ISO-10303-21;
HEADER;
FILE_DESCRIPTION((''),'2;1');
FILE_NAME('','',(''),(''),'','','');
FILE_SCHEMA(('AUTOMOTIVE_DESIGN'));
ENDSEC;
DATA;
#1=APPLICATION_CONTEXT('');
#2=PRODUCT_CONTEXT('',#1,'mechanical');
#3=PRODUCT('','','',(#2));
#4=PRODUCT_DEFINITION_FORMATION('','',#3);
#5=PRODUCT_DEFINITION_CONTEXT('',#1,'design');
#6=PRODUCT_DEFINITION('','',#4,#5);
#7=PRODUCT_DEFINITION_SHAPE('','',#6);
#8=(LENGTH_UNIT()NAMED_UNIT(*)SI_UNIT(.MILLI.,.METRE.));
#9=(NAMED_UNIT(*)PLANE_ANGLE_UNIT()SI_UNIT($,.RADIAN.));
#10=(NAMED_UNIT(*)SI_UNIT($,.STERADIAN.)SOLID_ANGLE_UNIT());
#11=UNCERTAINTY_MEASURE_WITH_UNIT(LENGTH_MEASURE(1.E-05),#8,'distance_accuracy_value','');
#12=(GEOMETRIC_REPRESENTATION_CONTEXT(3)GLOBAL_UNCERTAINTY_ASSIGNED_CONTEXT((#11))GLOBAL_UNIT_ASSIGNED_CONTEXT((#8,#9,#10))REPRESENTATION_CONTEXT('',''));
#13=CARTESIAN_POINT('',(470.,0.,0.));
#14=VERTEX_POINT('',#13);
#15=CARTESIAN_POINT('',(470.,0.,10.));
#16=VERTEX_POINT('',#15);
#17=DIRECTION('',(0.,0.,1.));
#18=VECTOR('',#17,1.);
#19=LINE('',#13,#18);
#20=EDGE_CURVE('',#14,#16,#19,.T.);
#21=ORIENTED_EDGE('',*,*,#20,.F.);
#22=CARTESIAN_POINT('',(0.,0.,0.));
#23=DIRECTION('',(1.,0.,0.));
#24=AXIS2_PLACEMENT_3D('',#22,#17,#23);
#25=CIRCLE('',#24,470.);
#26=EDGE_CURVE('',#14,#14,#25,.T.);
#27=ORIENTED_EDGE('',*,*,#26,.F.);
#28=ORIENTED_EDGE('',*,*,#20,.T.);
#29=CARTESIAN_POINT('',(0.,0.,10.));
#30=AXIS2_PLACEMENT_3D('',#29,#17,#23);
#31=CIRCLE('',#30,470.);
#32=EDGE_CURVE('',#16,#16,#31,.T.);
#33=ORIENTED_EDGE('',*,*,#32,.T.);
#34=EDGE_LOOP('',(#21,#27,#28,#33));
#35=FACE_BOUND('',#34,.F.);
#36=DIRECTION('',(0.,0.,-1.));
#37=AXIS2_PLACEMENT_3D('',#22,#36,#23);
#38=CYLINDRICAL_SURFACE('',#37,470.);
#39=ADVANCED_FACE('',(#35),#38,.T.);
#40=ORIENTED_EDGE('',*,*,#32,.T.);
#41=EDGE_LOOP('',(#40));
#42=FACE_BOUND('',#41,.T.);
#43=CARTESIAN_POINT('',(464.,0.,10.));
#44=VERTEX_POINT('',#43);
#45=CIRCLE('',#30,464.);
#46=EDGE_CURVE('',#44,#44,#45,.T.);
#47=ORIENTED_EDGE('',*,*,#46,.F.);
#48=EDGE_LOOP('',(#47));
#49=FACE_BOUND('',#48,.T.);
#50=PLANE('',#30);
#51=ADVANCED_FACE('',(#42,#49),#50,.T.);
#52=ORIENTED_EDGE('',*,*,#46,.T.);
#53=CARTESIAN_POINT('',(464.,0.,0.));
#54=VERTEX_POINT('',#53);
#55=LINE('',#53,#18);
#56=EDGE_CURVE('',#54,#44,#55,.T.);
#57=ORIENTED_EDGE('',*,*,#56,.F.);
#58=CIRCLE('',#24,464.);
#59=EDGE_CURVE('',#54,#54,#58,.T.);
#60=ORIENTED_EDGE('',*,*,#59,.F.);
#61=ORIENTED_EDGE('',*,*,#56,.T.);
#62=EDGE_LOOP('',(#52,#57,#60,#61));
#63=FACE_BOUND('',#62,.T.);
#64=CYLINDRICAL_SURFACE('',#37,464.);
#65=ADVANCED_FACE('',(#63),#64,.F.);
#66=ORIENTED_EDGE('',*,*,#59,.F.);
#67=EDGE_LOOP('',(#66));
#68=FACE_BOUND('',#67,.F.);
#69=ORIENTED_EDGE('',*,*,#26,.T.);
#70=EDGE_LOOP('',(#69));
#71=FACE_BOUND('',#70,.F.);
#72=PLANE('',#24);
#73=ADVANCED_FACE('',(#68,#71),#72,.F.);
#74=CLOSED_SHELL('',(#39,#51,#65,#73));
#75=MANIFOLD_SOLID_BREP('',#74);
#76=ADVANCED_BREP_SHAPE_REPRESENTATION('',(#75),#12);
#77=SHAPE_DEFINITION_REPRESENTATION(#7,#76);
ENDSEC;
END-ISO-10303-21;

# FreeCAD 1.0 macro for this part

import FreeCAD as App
import Part
import Sketcher
from FreeCAD import Vector

doc = App.newDocument("Part")
body = doc.addObject("PartDesign::Body", "Body")

sketch1 = body.newObject("Sketcher::SketchObject", "Sketch")
sketch1.AttachmentSupport = (doc.getObject("XY_Plane"), [""])
sketch1.MapMode = "FlatFace"
sketch1.addGeometry([
    Part.Circle(Vector(0, 0, 0), Vector(0, 0, 1), 470),
    Part.Circle(Vector(0, 0, 0), Vector(0, 0, 1), 464),
], False)
sketch1.addConstraint([
    Sketcher.Constraint("Coincident", 0, 3, -1, 1),
    Sketcher.Constraint("Coincident", 1, 3, -1, 1),
    Sketcher.Constraint("Diameter", 0, 940.0),
    Sketcher.Constraint("Diameter", 1, 928.0),
])
pad1 = body.newObject("PartDesign::Pad", "Pad")
pad1.Profile = sketch1
pad1.Length = 10

doc.recompute()
